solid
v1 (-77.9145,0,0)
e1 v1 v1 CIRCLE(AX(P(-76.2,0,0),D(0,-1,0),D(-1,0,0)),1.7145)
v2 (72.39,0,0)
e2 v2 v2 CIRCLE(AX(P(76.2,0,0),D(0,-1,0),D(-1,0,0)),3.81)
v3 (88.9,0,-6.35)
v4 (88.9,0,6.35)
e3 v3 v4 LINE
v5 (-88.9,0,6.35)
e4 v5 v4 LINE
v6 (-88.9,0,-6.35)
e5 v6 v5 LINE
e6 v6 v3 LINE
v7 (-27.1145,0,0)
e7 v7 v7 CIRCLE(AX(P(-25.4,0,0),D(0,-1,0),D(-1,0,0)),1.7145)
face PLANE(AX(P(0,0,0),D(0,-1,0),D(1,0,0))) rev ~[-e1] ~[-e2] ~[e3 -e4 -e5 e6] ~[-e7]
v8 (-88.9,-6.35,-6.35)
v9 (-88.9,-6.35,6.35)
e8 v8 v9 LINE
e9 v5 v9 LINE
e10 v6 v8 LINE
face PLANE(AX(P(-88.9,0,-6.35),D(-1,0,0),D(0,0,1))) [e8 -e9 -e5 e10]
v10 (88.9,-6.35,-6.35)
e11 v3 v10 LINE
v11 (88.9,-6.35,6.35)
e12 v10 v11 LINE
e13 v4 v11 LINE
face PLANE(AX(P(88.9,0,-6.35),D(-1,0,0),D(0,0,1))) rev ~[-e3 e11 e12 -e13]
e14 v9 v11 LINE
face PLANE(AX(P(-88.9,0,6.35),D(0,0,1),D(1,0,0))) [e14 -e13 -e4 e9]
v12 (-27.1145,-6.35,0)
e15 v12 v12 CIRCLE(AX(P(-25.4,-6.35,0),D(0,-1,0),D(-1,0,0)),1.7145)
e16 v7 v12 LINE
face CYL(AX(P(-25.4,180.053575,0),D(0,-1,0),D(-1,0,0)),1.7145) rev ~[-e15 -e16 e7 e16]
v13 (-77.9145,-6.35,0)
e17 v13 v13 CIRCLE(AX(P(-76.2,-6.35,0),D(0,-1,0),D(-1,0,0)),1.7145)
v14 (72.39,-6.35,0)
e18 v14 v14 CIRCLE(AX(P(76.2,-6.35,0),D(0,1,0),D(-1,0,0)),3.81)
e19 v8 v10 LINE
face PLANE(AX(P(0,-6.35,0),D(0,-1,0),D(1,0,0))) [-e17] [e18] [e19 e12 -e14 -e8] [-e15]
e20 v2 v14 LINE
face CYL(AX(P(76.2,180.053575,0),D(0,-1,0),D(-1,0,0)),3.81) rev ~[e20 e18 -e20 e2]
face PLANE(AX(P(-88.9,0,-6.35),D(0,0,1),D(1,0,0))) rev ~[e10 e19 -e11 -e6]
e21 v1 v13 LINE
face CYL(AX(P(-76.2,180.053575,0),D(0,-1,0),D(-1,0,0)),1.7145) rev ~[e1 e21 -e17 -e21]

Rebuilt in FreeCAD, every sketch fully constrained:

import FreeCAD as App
import Part
import Sketcher
from FreeCAD import Vector
Q = App.Units.Quantity

doc = App.newDocument("Part")
body = doc.addObject("PartDesign::Body", "Body")

sketch1 = doc.addObject("Sketcher::SketchObject", "Sketch")
body.addObject(sketch1)
sketch1.AttachmentSupport = (doc.XZ_Plane, [""])
sketch1.MapMode = "FlatFace"
sketch1.addGeometry(Part.Circle(Vector(76.2, 0, 0), Vector(0, 0, 1), 3.8), False)
sketch1.addConstraint([
    Sketcher.Constraint("PointOnObject", 0, 3, -1),
    Sketcher.Constraint("Diameter", 0, Q("0.3 in")),
    Sketcher.Constraint("DistanceX", -1, 1, 0, 3, Q("3 in")),
])
pad1 = doc.addObject("PartDesign::Pad", "Pad")
body.addObject(pad1)
pad1.Profile = sketch1
pad1.Length = Q("1 in")

sketch2 = doc.addObject("Sketcher::SketchObject", "Sketch001")
body.addObject(sketch2)
sketch2.AttachmentSupport = (doc.XZ_Plane, [""])
sketch2.MapMode = "FlatFace"
sketch2.addGeometry([
    Part.LineSegment(Vector(-88.9, 6.3, 0), Vector(-88.9, -6.3, 0)),
    Part.LineSegment(Vector(-88.9, -6.3, 0), Vector(88.9, -6.3, 0)),
    Part.LineSegment(Vector(88.9, -6.3, 0), Vector(88.9, 6.3, 0)),
    Part.LineSegment(Vector(88.9, 6.3, 0), Vector(-88.9, 6.3, 0)),
    Part.Circle(Vector(76.2, 0, 0), Vector(0, 0, 1), 3.8),
], False)
sketch2.addConstraint([
    Sketcher.Constraint("Coincident", 0, 2, 1, 1),
    Sketcher.Constraint("Coincident", 1, 2, 2, 1),
    Sketcher.Constraint("Coincident", 2, 2, 3, 1),
    Sketcher.Constraint("Coincident", 3, 2, 0, 1),
    Sketcher.Constraint("Vertical", 0),
    Sketcher.Constraint("Horizontal", 1),
    Sketcher.Constraint("Vertical", 2),
    Sketcher.Constraint("Horizontal", 3),
    Sketcher.Constraint("Symmetric", 0, 2, 2, 2, -1, 1),
    Sketcher.Constraint("PointOnObject", 4, 3, -1),
    Sketcher.Constraint("Diameter", 4, Q("0.3 in")),
    Sketcher.Constraint("DistanceX", 1, 1, 1, 2, Q("7 in")),
    Sketcher.Constraint("DistanceY", 0, 2, 0, 1, Q("0.5 in")),
    Sketcher.Constraint("DistanceX", -1, 1, 4, 3, Q("3 in")),
])
pad2 = doc.addObject("PartDesign::Pad", "Pad001")
body.addObject(pad2)
pad2.Profile = sketch2
pad2.Length = Q("0.25 in")

sketch3 = doc.addObject("Sketcher::SketchObject", "Sketch002")
body.addObject(sketch3)
sketch3.AttachmentSupport = (doc.XZ_Plane, [""])
sketch3.MapMode = "FlatFace"
sketch3.addGeometry([
    Part.Circle(Vector(-25.4, 0, 0), Vector(0, 0, 1), 1.7),
    Part.Circle(Vector(-76.2, 0, 0), Vector(0, 0, 1), 1.7),
], False)
sketch3.addConstraint([
    Sketcher.Constraint("Equal", 0, 1),
    Sketcher.Constraint("PointOnObject", 0, 3, -1),
    Sketcher.Constraint("PointOnObject", 1, 3, -1),
    Sketcher.Constraint("Diameter", 0, Q("0.135 in")),
    Sketcher.Constraint("DistanceX", 0, 3, -1, 1, Q("1 in")),
    Sketcher.Constraint("DistanceX", 1, 3, -1, 1, Q("3 in")),
])
doc.recompute()
hole = doc.addObject("PartDesign::Hole", "Hole")
body.addObject(hole)
hole.Profile = sketch3
hole.ThreadType = "None"
hole.Diameter = Q("0.135 in")
hole.DepthType = "ThroughAll"
hole.Reversed = True

sketch4 = doc.addObject("Sketcher::SketchObject", "Sketch003")
body.addObject(sketch4)
sketch4.AttachmentSupport = (doc.XZ_Plane, [""])
sketch4.MapMode = "FlatFace"
sketch4.addGeometry(Part.Circle(Vector(76.2, 0, 0), Vector(0, 0, 1), 3.8), False)
sketch4.addConstraint([
    Sketcher.Constraint("PointOnObject", 0, 3, -1),
    Sketcher.Constraint("Diameter", 0, Q("0.3 in")),
    Sketcher.Constraint("DistanceX", -1, 1, 0, 3, Q("3 in")),
])
doc.recompute()
hole2 = doc.addObject("PartDesign::Hole", "Hole001")
body.addObject(hole2)
hole2.Profile = sketch4
hole2.ThreadType = "None"
hole2.Diameter = Q("0.3 in")
hole2.DepthType = "ThroughAll"
hole2.Reversed = True

doc.recompute()
